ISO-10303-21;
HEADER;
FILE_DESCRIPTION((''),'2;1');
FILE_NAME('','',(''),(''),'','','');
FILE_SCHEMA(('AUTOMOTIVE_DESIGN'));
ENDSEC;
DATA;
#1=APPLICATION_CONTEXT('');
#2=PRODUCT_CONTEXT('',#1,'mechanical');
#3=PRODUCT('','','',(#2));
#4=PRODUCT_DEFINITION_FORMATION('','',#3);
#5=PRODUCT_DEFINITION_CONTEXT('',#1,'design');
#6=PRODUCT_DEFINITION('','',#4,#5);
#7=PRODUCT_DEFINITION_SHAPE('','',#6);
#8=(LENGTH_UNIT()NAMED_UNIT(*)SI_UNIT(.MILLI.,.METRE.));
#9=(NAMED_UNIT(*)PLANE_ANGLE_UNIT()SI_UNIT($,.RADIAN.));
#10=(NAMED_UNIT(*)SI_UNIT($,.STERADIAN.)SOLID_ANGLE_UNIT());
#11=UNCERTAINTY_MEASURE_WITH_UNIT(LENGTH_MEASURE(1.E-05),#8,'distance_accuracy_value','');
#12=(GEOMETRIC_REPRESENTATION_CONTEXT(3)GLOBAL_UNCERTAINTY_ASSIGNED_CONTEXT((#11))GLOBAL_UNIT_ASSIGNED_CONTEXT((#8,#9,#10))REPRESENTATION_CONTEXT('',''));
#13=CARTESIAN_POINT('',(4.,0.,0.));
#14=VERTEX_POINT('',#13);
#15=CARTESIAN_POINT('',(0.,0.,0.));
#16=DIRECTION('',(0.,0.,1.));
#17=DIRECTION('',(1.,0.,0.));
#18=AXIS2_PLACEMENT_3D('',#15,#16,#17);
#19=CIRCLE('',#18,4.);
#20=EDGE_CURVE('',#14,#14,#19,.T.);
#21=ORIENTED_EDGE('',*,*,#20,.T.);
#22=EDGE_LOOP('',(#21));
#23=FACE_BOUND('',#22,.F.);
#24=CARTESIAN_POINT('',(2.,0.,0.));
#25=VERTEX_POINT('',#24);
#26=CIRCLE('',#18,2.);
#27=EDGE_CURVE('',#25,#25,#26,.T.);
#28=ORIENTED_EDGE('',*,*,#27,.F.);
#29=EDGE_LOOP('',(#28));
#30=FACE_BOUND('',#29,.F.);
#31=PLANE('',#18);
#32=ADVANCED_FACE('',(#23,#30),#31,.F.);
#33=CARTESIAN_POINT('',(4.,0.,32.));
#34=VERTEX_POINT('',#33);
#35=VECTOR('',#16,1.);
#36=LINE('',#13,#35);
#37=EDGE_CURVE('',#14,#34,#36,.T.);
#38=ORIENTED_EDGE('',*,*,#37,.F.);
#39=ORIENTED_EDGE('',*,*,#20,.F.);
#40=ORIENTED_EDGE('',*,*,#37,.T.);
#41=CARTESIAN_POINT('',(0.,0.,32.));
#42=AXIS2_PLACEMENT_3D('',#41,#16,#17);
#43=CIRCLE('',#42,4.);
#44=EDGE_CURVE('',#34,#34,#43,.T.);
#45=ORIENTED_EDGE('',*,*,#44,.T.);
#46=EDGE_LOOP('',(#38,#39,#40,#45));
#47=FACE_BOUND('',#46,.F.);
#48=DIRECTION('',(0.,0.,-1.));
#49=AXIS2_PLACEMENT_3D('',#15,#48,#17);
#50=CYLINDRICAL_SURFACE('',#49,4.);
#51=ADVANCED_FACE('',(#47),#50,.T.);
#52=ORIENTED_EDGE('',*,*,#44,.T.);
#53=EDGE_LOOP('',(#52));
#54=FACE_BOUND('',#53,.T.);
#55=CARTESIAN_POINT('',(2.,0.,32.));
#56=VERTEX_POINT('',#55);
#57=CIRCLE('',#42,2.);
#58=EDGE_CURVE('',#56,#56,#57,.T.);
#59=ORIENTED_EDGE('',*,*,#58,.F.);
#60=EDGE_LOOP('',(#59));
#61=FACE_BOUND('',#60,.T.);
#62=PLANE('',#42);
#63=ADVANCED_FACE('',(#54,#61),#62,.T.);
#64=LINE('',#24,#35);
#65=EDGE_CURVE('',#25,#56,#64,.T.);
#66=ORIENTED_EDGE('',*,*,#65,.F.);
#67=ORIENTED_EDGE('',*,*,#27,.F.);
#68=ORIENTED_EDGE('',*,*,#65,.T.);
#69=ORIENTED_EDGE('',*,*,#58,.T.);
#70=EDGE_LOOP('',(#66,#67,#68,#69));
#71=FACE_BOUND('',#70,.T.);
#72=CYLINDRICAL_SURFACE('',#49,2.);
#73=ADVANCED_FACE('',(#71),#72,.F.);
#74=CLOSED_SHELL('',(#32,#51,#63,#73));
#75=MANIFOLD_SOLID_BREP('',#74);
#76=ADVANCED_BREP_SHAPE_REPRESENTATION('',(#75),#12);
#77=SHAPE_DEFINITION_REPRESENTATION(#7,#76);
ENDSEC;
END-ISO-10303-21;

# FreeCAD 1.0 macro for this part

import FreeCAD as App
import Part
import Sketcher
from FreeCAD import Vector

doc = App.newDocument("Part")
params = doc.addObject("Spreadsheet::Sheet", "Params")
for row, (alias, value) in enumerate([
    ("sketch1_diameter", "8 mm"),
    ("sketch1_diameter2", "4 mm"),
    ("pad1_length", "32 mm"),
], start=1):
    params.set(f"A{row}", alias)
    params.set(f"B{row}", "=" + value)
    params.setAlias(f"B{row}", alias)

body = doc.addObject("PartDesign::Body", "Body")

# Sketch on XY plane
sketch1 = body.newObject("Sketcher::SketchObject", "Sketch")
sketch1.AttachmentSupport = (doc.getObject("XY_Plane"), [""])
sketch1.MapMode = "FlatFace"
sketch1.addGeometry([
    Part.Circle(Vector(0, 0, 0), Vector(0, 0, 1), 4),
    Part.Circle(Vector(0, 0, 0), Vector(0, 0, 1), 2),
], False)
sketch1.addConstraint([
    Sketcher.Constraint("Coincident", 0, 3, -1, 1),
    Sketcher.Constraint("Coincident", 1, 3, -1, 1),
    Sketcher.Constraint("Diameter", 0, 8.0),
    Sketcher.Constraint("Diameter", 1, 4.0),
])
sketch1.setExpression("Constraints[2]", "Params.sketch1_diameter")
sketch1.setExpression("Constraints[3]", "Params.sketch1_diameter2")
pad1 = body.newObject("PartDesign::Pad", "Pad")
pad1.Profile = sketch1
pad1.setExpression("Length", "Params.pad1_length")

doc.recompute()
